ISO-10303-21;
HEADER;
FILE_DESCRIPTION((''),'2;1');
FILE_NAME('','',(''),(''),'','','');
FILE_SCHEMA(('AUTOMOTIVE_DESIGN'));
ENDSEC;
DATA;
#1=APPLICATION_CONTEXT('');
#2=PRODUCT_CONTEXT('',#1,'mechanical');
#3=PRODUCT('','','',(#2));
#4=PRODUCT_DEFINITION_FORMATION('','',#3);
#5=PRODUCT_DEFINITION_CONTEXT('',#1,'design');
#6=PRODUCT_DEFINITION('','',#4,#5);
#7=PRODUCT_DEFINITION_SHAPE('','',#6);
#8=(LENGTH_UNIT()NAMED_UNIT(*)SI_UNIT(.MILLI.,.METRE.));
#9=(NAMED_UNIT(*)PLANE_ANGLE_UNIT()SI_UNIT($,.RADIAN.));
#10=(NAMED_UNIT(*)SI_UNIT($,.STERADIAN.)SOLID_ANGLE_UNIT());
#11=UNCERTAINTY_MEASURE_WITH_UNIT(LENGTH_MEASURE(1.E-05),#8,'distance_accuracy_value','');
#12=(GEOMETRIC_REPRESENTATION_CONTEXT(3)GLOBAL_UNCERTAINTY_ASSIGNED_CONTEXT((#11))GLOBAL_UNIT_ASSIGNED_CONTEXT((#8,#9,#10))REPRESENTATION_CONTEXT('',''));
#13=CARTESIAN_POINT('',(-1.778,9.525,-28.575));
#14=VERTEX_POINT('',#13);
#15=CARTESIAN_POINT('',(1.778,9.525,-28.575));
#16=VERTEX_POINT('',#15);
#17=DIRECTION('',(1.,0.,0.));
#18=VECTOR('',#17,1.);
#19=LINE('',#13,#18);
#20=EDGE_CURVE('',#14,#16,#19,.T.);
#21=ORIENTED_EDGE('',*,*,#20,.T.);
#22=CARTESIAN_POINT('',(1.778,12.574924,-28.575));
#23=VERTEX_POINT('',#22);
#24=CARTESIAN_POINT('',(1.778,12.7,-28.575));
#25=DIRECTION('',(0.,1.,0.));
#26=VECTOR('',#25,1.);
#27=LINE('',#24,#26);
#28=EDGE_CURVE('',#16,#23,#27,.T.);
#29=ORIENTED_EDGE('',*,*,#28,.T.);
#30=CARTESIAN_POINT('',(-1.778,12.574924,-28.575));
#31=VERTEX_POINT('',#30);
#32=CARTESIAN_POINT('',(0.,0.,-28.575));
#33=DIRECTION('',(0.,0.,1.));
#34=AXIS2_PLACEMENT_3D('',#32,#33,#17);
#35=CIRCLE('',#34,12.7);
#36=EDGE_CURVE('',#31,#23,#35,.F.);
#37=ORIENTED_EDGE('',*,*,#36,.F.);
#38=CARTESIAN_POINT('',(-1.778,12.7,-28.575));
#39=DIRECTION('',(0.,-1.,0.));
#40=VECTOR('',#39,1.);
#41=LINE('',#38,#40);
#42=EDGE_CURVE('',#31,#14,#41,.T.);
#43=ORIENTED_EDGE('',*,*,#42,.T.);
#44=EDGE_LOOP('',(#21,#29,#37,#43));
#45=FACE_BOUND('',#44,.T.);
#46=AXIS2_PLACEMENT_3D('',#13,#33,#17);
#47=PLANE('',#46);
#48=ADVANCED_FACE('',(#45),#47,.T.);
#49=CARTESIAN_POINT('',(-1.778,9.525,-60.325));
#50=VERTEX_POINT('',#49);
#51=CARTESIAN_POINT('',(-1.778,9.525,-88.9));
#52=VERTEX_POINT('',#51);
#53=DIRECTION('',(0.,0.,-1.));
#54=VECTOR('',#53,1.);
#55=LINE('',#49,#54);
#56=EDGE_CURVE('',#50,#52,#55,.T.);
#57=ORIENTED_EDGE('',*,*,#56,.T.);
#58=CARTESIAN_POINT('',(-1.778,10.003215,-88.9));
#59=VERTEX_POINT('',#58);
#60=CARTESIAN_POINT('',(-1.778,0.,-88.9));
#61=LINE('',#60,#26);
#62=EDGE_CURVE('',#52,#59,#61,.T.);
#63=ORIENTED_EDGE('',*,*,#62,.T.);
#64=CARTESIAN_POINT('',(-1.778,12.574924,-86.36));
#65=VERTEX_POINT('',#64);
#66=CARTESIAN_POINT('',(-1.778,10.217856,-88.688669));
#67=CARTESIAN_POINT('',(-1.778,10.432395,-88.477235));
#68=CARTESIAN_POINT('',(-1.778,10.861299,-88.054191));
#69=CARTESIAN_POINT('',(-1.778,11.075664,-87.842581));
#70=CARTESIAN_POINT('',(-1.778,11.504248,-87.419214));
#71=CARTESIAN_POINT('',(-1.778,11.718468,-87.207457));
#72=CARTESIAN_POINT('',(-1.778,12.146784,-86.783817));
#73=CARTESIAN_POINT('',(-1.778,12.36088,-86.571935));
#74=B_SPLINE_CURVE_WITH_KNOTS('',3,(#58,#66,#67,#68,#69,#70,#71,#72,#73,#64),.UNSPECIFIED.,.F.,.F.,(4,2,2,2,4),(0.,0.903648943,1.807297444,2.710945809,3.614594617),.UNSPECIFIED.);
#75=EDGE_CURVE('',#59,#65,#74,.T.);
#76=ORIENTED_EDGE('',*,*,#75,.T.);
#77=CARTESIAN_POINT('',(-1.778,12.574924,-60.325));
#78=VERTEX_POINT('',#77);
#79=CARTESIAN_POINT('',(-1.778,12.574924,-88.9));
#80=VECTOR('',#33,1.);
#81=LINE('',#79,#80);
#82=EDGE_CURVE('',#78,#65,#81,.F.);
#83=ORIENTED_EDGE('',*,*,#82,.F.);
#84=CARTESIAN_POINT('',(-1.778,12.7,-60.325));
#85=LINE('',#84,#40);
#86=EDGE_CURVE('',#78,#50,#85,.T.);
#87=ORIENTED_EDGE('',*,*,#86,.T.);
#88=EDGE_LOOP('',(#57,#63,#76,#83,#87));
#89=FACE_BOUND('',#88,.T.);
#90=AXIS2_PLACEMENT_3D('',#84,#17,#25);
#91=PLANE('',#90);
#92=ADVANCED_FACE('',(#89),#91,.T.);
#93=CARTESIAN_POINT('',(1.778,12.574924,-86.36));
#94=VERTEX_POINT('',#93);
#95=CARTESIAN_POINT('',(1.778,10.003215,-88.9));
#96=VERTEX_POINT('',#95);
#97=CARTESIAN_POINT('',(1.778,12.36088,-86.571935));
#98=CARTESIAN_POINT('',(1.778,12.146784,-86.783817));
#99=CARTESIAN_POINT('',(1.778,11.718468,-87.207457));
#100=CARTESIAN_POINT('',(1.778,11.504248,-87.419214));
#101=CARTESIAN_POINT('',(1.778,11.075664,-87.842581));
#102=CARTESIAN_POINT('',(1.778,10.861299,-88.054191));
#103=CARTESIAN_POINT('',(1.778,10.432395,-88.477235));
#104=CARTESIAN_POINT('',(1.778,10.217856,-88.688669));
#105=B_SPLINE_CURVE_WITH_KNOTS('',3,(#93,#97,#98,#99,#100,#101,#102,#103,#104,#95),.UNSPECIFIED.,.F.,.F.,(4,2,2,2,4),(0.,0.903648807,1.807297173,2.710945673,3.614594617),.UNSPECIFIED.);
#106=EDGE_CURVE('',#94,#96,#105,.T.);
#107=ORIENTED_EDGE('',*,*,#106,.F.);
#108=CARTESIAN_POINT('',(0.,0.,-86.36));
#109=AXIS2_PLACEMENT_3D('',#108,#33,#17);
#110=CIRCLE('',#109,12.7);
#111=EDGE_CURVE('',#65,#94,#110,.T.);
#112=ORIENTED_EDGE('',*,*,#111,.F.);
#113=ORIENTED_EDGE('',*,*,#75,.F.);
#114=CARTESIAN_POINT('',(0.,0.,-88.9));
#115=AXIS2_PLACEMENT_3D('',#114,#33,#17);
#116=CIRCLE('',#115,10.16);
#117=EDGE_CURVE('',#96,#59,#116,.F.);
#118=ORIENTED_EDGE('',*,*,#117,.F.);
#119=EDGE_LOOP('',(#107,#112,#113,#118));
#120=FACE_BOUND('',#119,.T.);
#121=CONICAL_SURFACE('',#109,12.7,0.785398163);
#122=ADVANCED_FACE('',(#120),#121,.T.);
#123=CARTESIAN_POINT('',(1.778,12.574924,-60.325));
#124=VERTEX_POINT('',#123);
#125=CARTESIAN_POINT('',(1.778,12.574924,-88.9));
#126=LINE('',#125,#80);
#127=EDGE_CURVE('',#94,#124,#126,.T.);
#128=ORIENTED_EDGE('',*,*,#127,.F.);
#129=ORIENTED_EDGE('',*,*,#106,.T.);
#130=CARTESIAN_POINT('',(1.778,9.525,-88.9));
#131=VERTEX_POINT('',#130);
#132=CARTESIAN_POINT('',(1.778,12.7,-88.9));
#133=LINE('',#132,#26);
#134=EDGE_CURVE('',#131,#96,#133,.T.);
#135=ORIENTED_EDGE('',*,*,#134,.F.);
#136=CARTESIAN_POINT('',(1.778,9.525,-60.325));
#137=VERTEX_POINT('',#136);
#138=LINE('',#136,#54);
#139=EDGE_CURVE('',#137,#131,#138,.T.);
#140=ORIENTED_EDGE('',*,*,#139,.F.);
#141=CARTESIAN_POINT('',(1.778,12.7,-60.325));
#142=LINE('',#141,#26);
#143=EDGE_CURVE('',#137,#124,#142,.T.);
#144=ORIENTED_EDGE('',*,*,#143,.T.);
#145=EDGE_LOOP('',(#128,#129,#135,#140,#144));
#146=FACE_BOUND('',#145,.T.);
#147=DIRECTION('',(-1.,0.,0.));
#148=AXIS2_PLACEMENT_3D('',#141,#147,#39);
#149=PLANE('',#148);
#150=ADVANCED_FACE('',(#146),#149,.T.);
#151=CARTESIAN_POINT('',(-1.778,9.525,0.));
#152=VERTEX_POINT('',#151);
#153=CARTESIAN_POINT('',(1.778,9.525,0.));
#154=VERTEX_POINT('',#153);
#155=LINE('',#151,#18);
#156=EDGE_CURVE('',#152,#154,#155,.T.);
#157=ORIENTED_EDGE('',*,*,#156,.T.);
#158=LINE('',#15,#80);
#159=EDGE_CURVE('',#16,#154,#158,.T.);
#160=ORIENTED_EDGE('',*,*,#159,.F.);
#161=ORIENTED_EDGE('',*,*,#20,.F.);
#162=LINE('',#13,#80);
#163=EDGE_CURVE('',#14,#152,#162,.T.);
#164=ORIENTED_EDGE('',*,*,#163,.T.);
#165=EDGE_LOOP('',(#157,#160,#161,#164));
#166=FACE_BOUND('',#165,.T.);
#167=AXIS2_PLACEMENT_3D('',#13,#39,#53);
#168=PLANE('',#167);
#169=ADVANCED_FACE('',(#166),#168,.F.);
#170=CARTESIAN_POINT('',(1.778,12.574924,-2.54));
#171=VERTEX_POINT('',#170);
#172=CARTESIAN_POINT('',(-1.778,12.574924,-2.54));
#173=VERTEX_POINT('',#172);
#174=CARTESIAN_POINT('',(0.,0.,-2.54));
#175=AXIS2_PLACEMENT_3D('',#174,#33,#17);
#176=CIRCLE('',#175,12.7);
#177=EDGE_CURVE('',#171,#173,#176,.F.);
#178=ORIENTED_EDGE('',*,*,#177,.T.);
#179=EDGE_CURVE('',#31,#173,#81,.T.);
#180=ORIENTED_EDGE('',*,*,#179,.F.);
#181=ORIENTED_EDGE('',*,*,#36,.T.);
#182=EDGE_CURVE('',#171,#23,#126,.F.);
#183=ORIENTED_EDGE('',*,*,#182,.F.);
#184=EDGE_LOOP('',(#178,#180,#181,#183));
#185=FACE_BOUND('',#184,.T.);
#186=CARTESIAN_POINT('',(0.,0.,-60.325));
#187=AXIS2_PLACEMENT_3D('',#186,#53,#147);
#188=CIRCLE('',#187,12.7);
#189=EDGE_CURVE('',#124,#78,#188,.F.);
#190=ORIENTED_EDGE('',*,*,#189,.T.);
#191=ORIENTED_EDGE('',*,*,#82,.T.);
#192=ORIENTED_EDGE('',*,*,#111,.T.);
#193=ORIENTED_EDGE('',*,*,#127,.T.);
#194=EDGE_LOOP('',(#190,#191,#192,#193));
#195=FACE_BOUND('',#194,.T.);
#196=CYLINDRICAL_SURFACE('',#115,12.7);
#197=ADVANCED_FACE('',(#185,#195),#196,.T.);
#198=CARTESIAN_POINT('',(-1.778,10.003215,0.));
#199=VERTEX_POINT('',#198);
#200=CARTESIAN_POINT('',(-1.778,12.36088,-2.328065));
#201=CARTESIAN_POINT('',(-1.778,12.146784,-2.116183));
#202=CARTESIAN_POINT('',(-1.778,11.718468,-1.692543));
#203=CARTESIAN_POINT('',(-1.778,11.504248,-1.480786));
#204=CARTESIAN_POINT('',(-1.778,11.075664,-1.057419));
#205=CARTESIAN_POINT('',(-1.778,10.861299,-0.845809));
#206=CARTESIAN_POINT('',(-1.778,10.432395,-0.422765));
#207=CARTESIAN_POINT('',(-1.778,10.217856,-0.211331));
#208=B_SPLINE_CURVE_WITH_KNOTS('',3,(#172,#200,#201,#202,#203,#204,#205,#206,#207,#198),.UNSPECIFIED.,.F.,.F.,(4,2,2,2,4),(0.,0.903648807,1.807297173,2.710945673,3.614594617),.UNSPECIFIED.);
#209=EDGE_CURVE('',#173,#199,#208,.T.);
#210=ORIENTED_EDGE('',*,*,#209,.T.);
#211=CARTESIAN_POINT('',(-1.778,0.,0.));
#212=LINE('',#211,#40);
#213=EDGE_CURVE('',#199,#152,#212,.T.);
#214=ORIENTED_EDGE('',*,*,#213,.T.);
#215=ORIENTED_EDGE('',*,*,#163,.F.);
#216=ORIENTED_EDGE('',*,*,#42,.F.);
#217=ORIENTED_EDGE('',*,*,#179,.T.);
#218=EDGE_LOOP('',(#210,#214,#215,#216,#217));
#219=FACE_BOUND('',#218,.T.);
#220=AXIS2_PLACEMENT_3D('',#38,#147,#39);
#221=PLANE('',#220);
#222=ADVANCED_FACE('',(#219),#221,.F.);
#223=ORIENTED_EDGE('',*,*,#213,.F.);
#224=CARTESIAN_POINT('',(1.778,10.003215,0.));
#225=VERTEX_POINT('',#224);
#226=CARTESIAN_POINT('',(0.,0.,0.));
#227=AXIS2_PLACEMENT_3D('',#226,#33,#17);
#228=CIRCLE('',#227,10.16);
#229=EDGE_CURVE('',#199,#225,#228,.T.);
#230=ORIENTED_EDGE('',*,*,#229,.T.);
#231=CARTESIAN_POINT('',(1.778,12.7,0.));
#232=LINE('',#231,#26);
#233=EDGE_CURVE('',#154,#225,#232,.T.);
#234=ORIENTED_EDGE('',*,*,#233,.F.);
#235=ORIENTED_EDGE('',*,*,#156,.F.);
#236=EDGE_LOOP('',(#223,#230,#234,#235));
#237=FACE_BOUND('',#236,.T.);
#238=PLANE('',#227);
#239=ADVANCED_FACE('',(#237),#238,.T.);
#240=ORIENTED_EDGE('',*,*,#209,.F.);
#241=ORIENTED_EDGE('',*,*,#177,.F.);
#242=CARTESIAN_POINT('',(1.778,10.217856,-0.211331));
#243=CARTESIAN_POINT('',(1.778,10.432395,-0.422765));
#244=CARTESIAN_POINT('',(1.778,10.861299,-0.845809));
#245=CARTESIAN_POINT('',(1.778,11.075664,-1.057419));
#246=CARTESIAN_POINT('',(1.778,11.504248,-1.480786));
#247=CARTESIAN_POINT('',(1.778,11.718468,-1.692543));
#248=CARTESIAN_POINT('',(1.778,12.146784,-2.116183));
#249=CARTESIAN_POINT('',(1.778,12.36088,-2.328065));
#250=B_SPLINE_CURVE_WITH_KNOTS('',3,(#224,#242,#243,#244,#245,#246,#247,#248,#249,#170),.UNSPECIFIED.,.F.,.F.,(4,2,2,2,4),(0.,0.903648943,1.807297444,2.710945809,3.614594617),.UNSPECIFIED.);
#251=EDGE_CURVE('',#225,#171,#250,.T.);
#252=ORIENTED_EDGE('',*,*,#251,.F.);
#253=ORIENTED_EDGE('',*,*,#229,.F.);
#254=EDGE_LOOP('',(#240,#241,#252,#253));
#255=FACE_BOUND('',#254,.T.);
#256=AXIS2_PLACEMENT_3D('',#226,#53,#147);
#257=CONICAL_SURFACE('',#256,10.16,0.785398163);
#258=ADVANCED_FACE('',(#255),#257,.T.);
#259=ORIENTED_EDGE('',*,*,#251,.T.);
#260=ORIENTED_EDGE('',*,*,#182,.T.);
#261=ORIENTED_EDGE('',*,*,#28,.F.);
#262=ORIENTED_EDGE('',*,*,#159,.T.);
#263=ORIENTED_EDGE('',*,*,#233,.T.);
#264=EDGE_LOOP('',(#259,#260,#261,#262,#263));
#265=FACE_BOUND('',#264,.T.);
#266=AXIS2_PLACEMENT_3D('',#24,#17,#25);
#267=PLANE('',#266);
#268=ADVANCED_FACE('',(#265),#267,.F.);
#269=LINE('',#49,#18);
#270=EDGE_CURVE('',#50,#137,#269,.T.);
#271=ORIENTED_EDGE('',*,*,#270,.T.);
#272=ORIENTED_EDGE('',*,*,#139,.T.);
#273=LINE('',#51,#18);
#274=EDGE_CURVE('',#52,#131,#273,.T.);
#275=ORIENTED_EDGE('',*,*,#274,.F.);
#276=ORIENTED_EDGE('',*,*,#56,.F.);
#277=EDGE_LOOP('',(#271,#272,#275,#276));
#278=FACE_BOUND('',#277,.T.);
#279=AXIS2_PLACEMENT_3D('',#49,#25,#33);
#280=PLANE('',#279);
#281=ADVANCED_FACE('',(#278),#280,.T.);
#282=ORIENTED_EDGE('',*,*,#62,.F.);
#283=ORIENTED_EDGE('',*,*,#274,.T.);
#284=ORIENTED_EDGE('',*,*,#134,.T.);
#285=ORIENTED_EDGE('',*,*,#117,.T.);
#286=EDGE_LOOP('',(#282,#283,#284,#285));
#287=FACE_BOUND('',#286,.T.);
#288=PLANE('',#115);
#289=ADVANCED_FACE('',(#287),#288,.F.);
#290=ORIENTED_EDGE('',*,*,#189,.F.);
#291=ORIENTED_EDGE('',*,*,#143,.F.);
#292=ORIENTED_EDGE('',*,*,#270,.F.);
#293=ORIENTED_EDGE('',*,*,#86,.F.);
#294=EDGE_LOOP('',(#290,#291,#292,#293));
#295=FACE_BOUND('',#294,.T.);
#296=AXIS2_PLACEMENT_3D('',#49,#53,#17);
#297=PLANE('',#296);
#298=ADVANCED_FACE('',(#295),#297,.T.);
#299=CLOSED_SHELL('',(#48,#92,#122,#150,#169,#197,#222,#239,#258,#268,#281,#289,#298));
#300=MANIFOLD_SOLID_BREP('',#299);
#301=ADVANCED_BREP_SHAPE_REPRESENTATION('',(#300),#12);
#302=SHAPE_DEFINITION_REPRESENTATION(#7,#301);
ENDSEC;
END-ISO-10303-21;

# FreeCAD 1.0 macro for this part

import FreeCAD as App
import Part
import Sketcher

V = App.Vector
Q = App.Units.Quantity


def edges_at(feature, points):
    """Names of the edges that pass closest to the given points."""
    edges = feature.Shape.Edges
    near = lambda p: min(range(len(edges)), key=lambda i: edges[i].distToShape(Part.Vertex(*p))[0])
    return sorted({f"Edge{near(p) + 1}" for p in points})


def add_polygon(sketch, points):
    """Adds a closed chain of lines whose ends are joined by coincident constraints."""
    first, n = sketch.GeometryCount, len(points)
    for a, b in zip(points, points[1:] + points[:1]):
        sketch.addGeometry(Part.LineSegment(App.Vector(*a, 0), App.Vector(*b, 0)), False)
    for i in range(n):
        sketch.addConstraint(Sketcher.Constraint("Coincident", first + i, 2, first + (i + 1) % n, 1))

doc = App.newDocument("Part")
body = doc.addObject("PartDesign::Body", "Body")

# Sketch on XY plane
sketch1 = body.newObject("Sketcher::SketchObject", "Sketch")
sketch1.AttachmentSupport = (doc.getObject("XY_Plane"), [""])
sketch1.MapMode = "FlatFace"
sketch1.addGeometry(Part.Circle(V(0, 0, 0), V(0, 0, 1), 13), False)
sketch1.addConstraint([
    Sketcher.Constraint("Coincident", 0, 3, -1, 1),
    Sketcher.Constraint("Diameter", 0, Q("1 in")),
])
pad1 = body.newObject("PartDesign::Pad", "Pad")
pad1.Profile = sketch1
pad1.Length = Q("3.5 in")
pad1.Reversed = True

# Sketch on XY plane
sketch2 = body.newObject("Sketcher::SketchObject", "Sketch001")
sketch2.AttachmentSupport = (doc.getObject("XY_Plane"), [""])
sketch2.MapMode = "FlatFace"
add_polygon(sketch2, [(-1.8, 12.7), (-1.8, 9.5), (1.8, 9.5), (1.8, 12.7)])  # lines 0-3
sketch2.addConstraint([
    Sketcher.Constraint("Vertical", 0),
    Sketcher.Constraint("Horizontal", 1),
    Sketcher.Constraint("Vertical", 2),
    Sketcher.Constraint("Horizontal", 3),
    Sketcher.Constraint("DistanceX", 1, 1, 1, 2, Q("0.14 in")),
    Sketcher.Constraint("DistanceY", -1, 1, 2, 2, Q("0.5 in")),
    Sketcher.Constraint("DistanceY", 0, 2, 0, 1, Q("0.125 in")),
    Sketcher.Constraint("DistanceX", 0, 2, -1, 1, Q("0.07 in")),
])
pocket1 = body.newObject("PartDesign::Pocket", "Pocket")
pocket1.Profile = sketch2
pocket1.Length = Q("1.125 in")
doc.recompute()

chamfer = body.newObject("PartDesign::Chamfer", "Chamfer")
chamfer.Base = (pocket1, edges_at(pocket1, [(-8.328, -9.588, 0)]))
chamfer.Size = Q("0.1 in")
doc.recompute()

datumplane = body.newObject("PartDesign::Plane", "DatumPlane")
datumplane.AttachmentSupport = (doc.getObject("XY_Plane"), [""])
datumplane.MapMode = "FlatFace"
datumplane.AttachmentOffset = App.Placement(V(0, 0, -1.75 * 25.4), App.Rotation())
mirrored = body.newObject("PartDesign::Mirrored", "Mirrored")
mirrored.Originals = [pocket1]
mirrored.MirrorPlane = (datumplane, [""])
body.Tip = mirrored
doc.recompute()

chamfer2 = body.newObject("PartDesign::Chamfer", "Chamfer001")
chamfer2.Base = (mirrored, edges_at(mirrored, [(-8.328, -9.588, -88.9)]))
chamfer2.Size = Q("0.1 in")

doc.recompute()
